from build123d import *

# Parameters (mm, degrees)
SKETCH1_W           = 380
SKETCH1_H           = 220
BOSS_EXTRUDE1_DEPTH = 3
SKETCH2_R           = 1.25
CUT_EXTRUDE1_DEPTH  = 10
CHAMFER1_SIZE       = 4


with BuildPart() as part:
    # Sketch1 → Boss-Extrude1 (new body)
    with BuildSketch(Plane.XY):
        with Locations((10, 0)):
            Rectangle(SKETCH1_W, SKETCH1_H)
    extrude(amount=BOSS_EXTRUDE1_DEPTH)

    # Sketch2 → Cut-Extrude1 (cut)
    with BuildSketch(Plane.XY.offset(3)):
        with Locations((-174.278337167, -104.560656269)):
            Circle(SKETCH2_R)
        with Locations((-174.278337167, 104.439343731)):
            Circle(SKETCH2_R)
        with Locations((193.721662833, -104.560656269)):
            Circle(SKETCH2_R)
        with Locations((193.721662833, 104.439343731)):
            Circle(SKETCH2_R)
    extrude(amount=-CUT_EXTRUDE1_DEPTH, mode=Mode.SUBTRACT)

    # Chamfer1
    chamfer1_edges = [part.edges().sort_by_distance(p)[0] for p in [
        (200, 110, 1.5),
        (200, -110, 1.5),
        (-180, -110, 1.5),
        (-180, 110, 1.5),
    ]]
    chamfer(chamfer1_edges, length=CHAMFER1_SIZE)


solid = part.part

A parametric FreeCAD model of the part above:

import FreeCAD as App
import Part
import Sketcher
Q = App.Units.Quantity


def edges_at(feature, points):
    """Names of the edges that pass closest to the given points."""
    edges = feature.Shape.Edges
    near = lambda p: min(range(len(edges)), key=lambda i: edges[i].distToShape(Part.Vertex(*p))[0])
    return sorted({f"Edge{near(p) + 1}" for p in points})


def add_polygon(sketch, points):
    """Adds a closed chain of lines whose ends are joined by coincident constraints."""
    first, n = sketch.GeometryCount, len(points)
    for a, b in zip(points, points[1:] + points[:1]):
        sketch.addGeometry(Part.LineSegment(App.Vector(*a, 0), App.Vector(*b, 0)), False)
    for i in range(n):
        sketch.addConstraint(Sketcher.Constraint("Coincident", first + i, 2, first + (i + 1) % n, 1))

doc = App.newDocument("Part")
body = doc.addObject("PartDesign::Body", "Body")

# Sketch on XY plane
sketch1 = doc.addObject("Sketcher::SketchObject", "Sketch")
body.addObject(sketch1)
sketch1.AttachmentSupport = (doc.XY_Plane, [""])
sketch1.MapMode = "FlatFace"
add_polygon(sketch1, [(-180, 110), (-180, -110), (200, -110), (200, 110)])  # lines 0-3
sketch1.addConstraint([
    Sketcher.Constraint("Vertical", 0),
    Sketcher.Constraint("Horizontal", 1),
    Sketcher.Constraint("Vertical", 2),
    Sketcher.Constraint("Horizontal", 3),
    Sketcher.Constraint("DistanceX", 1, 1, 1, 2, Q("380 mm")),
    Sketcher.Constraint("DistanceY", 0, 2, 0, 1, Q("220 mm")),
    Sketcher.Constraint("DistanceX", 0, 2, -1, 1, Q("180 mm")),
    Sketcher.Constraint("DistanceY", 0, 2, -1, 1, Q("110 mm")),
])
pad1 = doc.addObject("PartDesign::Pad", "Pad")
body.addObject(pad1)
pad1.Profile = sketch1
pad1.Length = 3

# Sketch on XY plane
sketch2 = doc.addObject("Sketcher::SketchObject", "Sketch001")
body.addObject(sketch2)
sketch2.AttachmentSupport = (doc.XY_Plane, [""])
sketch2.MapMode = "FlatFace"
sketch2.AttachmentOffset = App.Placement(App.Vector(0, 0, 3), App.Rotation())
sketch2.addGeometry([
    Part.Circle(App.Vector(-174.278337, -104.560656, 0), App.Vector(0, 0, 1), 1.25),
    Part.Circle(App.Vector(-174.278337, 104.439344, 0), App.Vector(0, 0, 1), 1.25),
    Part.Circle(App.Vector(193.721663, -104.560656, 0), App.Vector(0, 0, 1), 1.25),
    Part.Circle(App.Vector(193.721663, 104.439344, 0), App.Vector(0, 0, 1), 1.25),
], False)
sketch2.addConstraint([
    Sketcher.Constraint("Equal", 0, 1),
    Sketcher.Constraint("Equal", 1, 2),
    Sketcher.Constraint("Equal", 2, 3),
    Sketcher.Constraint("Horizontal", 0, 3, 2, 3),
    Sketcher.Constraint("Horizontal", 1, 3, 3, 3),
    Sketcher.Constraint("Vertical", 0, 3, 1, 3),
    Sketcher.Constraint("Vertical", 2, 3, 3, 3),
    Sketcher.Constraint("Diameter", 0, Q("2.5 mm")),
    Sketcher.Constraint("DistanceY", 0, 3, 1, 3, Q("209 mm")),
    Sketcher.Constraint("DistanceX", 0, 3, 2, 3, Q("368 mm")),
    Sketcher.Constraint("DistanceX", 0, 3, -1, 1, Q("174.278337 mm")),
    Sketcher.Constraint("DistanceY", 0, 3, -1, 1, Q("104.560656 mm")),
])
pocket1 = doc.addObject("PartDesign::Pocket", "Pocket")
body.addObject(pocket1)
pocket1.Profile = sketch2
pocket1.Length = 10
doc.recompute()

chamfer = doc.addObject("PartDesign::Chamfer", "Chamfer")
body.addObject(chamfer)
chamfer.Base = (pocket1, edges_at(pocket1, [
    (200, 110, 1.5),
    (200, -110, 1.5),
    (-180, -110, 1.5),
    (-180, 110, 1.5),
]))
chamfer.Size = 4

doc.recompute()
